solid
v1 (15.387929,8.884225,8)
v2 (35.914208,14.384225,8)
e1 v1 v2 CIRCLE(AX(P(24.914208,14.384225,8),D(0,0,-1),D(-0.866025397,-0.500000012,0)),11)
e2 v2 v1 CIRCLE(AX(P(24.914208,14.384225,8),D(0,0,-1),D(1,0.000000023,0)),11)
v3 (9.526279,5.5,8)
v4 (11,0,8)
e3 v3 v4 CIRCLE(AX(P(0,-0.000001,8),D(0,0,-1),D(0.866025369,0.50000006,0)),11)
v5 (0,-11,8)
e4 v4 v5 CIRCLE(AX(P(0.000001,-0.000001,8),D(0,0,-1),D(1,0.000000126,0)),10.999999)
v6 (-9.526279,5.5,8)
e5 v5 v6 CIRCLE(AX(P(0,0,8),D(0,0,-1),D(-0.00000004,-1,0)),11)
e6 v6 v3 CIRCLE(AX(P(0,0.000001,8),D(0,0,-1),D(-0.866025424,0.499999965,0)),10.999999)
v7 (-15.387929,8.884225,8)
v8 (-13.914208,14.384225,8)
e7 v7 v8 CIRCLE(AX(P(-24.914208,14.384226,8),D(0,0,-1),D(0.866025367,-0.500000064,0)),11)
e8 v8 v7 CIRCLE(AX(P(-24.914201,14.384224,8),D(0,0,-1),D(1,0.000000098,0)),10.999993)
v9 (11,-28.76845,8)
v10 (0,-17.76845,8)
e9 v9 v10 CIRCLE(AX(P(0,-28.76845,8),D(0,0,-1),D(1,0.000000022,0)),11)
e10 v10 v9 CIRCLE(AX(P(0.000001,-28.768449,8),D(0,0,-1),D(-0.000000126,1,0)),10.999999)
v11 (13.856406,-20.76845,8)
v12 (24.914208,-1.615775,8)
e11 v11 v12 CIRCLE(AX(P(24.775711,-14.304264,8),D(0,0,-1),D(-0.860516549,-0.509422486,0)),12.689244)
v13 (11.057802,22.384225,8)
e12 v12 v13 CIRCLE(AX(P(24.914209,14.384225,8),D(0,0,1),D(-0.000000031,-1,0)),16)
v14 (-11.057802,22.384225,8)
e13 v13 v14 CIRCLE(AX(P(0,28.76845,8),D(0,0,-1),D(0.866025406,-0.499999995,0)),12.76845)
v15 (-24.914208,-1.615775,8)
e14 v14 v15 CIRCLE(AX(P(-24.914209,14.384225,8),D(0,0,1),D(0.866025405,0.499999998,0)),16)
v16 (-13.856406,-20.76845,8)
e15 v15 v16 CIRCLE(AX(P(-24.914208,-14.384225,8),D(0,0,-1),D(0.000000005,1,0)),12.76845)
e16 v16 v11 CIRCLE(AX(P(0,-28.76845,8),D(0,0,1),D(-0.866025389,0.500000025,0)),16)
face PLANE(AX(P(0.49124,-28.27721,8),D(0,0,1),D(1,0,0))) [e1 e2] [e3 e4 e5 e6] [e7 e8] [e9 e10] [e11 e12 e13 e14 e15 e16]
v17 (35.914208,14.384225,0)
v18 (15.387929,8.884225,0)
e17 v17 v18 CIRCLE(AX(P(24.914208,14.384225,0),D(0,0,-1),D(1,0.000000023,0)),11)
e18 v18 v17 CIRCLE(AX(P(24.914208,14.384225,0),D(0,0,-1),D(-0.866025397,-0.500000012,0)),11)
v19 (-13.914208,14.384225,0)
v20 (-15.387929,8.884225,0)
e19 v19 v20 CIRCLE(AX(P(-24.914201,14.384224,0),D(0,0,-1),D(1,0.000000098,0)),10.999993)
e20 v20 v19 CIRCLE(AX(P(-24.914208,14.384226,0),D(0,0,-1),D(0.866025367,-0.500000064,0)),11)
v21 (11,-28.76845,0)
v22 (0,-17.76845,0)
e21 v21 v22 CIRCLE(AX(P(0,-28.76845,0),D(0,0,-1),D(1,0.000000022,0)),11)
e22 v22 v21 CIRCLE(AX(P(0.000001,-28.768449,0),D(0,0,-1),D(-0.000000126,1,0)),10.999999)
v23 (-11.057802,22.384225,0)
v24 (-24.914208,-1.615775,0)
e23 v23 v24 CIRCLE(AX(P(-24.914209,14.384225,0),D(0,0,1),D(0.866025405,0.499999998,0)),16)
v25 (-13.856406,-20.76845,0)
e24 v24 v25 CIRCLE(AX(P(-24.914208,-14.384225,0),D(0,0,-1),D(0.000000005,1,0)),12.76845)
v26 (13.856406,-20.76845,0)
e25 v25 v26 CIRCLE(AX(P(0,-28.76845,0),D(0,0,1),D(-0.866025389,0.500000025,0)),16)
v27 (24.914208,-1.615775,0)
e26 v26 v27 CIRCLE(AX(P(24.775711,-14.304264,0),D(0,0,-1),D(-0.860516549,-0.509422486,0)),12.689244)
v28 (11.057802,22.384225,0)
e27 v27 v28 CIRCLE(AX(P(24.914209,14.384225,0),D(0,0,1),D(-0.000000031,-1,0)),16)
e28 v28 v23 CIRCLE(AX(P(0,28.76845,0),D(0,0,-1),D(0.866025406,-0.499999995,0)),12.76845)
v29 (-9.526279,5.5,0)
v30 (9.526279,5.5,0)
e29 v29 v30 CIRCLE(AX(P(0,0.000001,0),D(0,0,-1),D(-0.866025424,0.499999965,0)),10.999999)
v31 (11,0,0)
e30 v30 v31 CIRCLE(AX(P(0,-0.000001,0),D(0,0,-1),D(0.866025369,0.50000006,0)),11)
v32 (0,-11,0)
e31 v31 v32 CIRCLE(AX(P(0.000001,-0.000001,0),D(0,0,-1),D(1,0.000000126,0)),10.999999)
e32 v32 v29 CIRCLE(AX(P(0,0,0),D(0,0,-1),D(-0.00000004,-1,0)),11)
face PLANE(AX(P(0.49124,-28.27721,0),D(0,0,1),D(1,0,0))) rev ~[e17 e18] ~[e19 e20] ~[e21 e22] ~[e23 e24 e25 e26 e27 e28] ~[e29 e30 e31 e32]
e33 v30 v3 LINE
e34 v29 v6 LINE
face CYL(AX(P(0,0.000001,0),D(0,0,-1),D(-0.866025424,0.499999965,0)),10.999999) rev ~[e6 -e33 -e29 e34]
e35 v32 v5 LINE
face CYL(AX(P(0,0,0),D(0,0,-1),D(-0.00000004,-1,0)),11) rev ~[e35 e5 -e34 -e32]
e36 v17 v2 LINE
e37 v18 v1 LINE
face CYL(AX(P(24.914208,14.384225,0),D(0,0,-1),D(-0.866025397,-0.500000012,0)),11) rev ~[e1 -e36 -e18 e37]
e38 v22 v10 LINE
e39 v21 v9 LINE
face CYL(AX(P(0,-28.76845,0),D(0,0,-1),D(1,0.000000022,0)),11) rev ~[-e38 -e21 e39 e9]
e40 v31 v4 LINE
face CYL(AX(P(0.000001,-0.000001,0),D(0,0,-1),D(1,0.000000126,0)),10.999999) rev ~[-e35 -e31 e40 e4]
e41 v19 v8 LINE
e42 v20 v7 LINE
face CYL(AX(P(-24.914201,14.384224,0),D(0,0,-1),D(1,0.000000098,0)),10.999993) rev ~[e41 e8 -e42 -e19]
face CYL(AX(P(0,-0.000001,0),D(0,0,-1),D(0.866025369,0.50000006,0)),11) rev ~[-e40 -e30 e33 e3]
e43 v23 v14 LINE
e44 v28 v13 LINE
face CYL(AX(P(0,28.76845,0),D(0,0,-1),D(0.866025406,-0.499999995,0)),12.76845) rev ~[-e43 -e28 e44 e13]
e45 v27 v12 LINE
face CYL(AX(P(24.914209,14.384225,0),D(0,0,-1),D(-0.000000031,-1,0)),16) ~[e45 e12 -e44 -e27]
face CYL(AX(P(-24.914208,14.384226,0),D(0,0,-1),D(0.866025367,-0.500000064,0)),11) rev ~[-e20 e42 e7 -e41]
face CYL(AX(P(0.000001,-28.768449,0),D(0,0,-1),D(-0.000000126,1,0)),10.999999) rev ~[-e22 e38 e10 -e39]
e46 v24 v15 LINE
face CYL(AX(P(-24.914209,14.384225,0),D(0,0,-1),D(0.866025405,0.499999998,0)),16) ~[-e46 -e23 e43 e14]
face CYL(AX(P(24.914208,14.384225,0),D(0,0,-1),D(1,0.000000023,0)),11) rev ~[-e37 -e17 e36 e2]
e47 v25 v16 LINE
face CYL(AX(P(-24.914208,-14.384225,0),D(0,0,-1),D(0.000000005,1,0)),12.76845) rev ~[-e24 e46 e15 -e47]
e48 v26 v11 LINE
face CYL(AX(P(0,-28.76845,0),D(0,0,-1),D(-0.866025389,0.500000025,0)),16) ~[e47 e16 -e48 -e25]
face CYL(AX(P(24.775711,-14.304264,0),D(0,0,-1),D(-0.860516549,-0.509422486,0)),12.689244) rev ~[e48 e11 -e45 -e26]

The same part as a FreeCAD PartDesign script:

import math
import FreeCAD as App
import Part
import Sketcher
Q = App.Units.Quantity

doc = App.newDocument("Part")
body = doc.addObject("PartDesign::Body", "Body")

# Sketch on XY plane
sketch1 = body.newObject("Sketcher::SketchObject", "Sketch")
sketch1.AttachmentSupport = (doc.getObject("XY_Plane"), [""])
sketch1.MapMode = "FlatFace"
sketch1.addGeometry([
    Part.ArcOfCircle(Part.Circle(App.Vector(25, 14, 0), App.Vector(0, 0, 1), 16), math.radians(-90), math.radians(150)),  # 0
    Part.ArcOfCircle(Part.Circle(App.Vector(0, 29, 0), App.Vector(0, 0, 1), 13), math.radians(-150), math.radians(-30)),  # 1
    Part.ArcOfCircle(Part.Circle(App.Vector(-25, 14, 0), App.Vector(0, 0, 1), 16), math.radians(30), math.radians(270)),  # 2
    Part.ArcOfCircle(Part.Circle(App.Vector(-25, -14, 0), App.Vector(0, 0, 1), 13), math.radians(-30), math.radians(90)),  # 3
    Part.ArcOfCircle(Part.Circle(App.Vector(0, -29, 0), App.Vector(0, 0, 1), 16), math.radians(150), math.radians(390)),  # 4
    Part.ArcOfCircle(Part.Circle(App.Vector(25, -14, 0), App.Vector(0, 0, 1), 13), math.radians(89), math.radians(211)),  # 5
    Part.ArcOfCircle(Part.Circle(App.Vector(0, -29, 0), App.Vector(0, 0, 1), 11), math.radians(0), math.radians(90)),  # 6
    Part.ArcOfCircle(Part.Circle(App.Vector(0, -29, 0), App.Vector(0, 0, 1), 11), math.radians(90), math.radians(360)),  # 7
    Part.ArcOfCircle(Part.Circle(App.Vector(-25, 14, 0), App.Vector(0, 0, 1), 11), math.radians(0), math.radians(330)),  # 8
    Part.ArcOfCircle(Part.Circle(App.Vector(-25, 14, 0), App.Vector(0, 0, 1), 11), math.radians(-30), math.radians(0)),  # 9
    Part.ArcOfCircle(Part.Circle(App.Vector(0, 0, 0), App.Vector(0, 0, 1), 11), math.radians(0), math.radians(30)),  # 10
    Part.ArcOfCircle(Part.Circle(App.Vector(0, 0, 0), App.Vector(0, 0, 1), 11), math.radians(-90), math.radians(0)),  # 11
    Part.ArcOfCircle(Part.Circle(App.Vector(0, 0, 0), App.Vector(0, 0, 1), 11), math.radians(150), math.radians(270)),  # 12
    Part.ArcOfCircle(Part.Circle(App.Vector(0, 0, 0), App.Vector(0, 0, 1), 11), math.radians(30), math.radians(150)),  # 13
    Part.ArcOfCircle(Part.Circle(App.Vector(25, 14, 0), App.Vector(0, 0, 1), 11), math.radians(0), math.radians(210)),  # 14
    Part.ArcOfCircle(Part.Circle(App.Vector(25, 14, 0), App.Vector(0, 0, 1), 11), math.radians(-150), math.radians(0)),  # 15
], False)
sketch1.addConstraint([
    Sketcher.Constraint("Tangent", 0, 2, 1, 2),
    Sketcher.Constraint("Tangent", 1, 1, 2, 1),
    Sketcher.Constraint("Tangent", 2, 2, 3, 2),
    Sketcher.Constraint("Tangent", 3, 1, 4, 1),
    Sketcher.Constraint("Coincident", 4, 2, 5, 2),
    Sketcher.Constraint("Coincident", 5, 1, 0, 1),
    Sketcher.Constraint("Tangent", 6, 1, 7, 2),
    Sketcher.Constraint("Coincident", 7, 1, 6, 2),
    Sketcher.Constraint("Tangent", 8, 1, 9, 2),
    Sketcher.Constraint("Coincident", 9, 1, 8, 2),
    Sketcher.Constraint("Tangent", 10, 1, 11, 2),
    Sketcher.Constraint("Tangent", 11, 1, 12, 2),
    Sketcher.Constraint("Tangent", 12, 1, 13, 2),
    Sketcher.Constraint("Tangent", 13, 1, 10, 2),
    Sketcher.Constraint("Tangent", 14, 1, 15, 2),
    Sketcher.Constraint("Coincident", 15, 1, 14, 2),
    Sketcher.Constraint("Coincident", 10, 3, -1, 1),
    Sketcher.Constraint("Coincident", 6, 3, 4, 3),
    Sketcher.Constraint("Coincident", 8, 3, 2, 3),
    Sketcher.Constraint("Coincident", 14, 3, 0, 3),
    Sketcher.Constraint("Equal", 0, 2),
    Sketcher.Constraint("Equal", 1, 3),
    Sketcher.Constraint("Equal", 2, 4),
    Sketcher.Constraint("Equal", 7, 8),
    Sketcher.Constraint("Equal", 8, 10),
    Sketcher.Constraint("Equal", 10, 11),
    Sketcher.Constraint("Equal", 13, 14),
    Sketcher.Constraint("Symmetric", 0, 3, 3, 3, -1, 1),
    Sketcher.Constraint("Symmetric", 0, 3, 2, 3, -2),
    Sketcher.Constraint("Symmetric", 3, 1, 4, 2, -2),
    Sketcher.Constraint("PointOnObject", 7, 1, -2),
    Sketcher.Constraint("PointOnObject", 10, 1, -1),
    Sketcher.Constraint("PointOnObject", 11, 1, -2),
    Sketcher.Constraint("Horizontal", 7, 3, 6, 1),
    Sketcher.Constraint("Horizontal", 15, 3, 8, 1),
    Sketcher.Constraint("Horizontal", 12, 1, 13, 1),
    Sketcher.Constraint("Horizontal", 8, 1, 14, 1),
    Sketcher.Constraint("Horizontal", 9, 1, 15, 1),
    Sketcher.Constraint("Vertical", 15, 3, 5, 1),
    Sketcher.Constraint("Radius", 0, Q("16 mm")),
    Sketcher.Constraint("Radius", 6, Q("10.999999 mm")),
    Sketcher.Constraint("DistanceY", 14, 3, 0, 2, Q("8 mm")),
    Sketcher.Constraint("DistanceY", -1, 1, 12, 1, Q("5.5 mm")),
    Sketcher.Constraint("DistanceY", 9, 1, 8, 1, Q("5.5 mm")),
    Sketcher.Constraint("Radius", 1, Q("12.76845 mm")),
    Sketcher.Constraint("Radius", 5, Q("12.689244 mm")),
])
pad1 = body.newObject("PartDesign::Pad", "Pad")
pad1.Profile = sketch1
pad1.Length = 8

doc.recompute()
